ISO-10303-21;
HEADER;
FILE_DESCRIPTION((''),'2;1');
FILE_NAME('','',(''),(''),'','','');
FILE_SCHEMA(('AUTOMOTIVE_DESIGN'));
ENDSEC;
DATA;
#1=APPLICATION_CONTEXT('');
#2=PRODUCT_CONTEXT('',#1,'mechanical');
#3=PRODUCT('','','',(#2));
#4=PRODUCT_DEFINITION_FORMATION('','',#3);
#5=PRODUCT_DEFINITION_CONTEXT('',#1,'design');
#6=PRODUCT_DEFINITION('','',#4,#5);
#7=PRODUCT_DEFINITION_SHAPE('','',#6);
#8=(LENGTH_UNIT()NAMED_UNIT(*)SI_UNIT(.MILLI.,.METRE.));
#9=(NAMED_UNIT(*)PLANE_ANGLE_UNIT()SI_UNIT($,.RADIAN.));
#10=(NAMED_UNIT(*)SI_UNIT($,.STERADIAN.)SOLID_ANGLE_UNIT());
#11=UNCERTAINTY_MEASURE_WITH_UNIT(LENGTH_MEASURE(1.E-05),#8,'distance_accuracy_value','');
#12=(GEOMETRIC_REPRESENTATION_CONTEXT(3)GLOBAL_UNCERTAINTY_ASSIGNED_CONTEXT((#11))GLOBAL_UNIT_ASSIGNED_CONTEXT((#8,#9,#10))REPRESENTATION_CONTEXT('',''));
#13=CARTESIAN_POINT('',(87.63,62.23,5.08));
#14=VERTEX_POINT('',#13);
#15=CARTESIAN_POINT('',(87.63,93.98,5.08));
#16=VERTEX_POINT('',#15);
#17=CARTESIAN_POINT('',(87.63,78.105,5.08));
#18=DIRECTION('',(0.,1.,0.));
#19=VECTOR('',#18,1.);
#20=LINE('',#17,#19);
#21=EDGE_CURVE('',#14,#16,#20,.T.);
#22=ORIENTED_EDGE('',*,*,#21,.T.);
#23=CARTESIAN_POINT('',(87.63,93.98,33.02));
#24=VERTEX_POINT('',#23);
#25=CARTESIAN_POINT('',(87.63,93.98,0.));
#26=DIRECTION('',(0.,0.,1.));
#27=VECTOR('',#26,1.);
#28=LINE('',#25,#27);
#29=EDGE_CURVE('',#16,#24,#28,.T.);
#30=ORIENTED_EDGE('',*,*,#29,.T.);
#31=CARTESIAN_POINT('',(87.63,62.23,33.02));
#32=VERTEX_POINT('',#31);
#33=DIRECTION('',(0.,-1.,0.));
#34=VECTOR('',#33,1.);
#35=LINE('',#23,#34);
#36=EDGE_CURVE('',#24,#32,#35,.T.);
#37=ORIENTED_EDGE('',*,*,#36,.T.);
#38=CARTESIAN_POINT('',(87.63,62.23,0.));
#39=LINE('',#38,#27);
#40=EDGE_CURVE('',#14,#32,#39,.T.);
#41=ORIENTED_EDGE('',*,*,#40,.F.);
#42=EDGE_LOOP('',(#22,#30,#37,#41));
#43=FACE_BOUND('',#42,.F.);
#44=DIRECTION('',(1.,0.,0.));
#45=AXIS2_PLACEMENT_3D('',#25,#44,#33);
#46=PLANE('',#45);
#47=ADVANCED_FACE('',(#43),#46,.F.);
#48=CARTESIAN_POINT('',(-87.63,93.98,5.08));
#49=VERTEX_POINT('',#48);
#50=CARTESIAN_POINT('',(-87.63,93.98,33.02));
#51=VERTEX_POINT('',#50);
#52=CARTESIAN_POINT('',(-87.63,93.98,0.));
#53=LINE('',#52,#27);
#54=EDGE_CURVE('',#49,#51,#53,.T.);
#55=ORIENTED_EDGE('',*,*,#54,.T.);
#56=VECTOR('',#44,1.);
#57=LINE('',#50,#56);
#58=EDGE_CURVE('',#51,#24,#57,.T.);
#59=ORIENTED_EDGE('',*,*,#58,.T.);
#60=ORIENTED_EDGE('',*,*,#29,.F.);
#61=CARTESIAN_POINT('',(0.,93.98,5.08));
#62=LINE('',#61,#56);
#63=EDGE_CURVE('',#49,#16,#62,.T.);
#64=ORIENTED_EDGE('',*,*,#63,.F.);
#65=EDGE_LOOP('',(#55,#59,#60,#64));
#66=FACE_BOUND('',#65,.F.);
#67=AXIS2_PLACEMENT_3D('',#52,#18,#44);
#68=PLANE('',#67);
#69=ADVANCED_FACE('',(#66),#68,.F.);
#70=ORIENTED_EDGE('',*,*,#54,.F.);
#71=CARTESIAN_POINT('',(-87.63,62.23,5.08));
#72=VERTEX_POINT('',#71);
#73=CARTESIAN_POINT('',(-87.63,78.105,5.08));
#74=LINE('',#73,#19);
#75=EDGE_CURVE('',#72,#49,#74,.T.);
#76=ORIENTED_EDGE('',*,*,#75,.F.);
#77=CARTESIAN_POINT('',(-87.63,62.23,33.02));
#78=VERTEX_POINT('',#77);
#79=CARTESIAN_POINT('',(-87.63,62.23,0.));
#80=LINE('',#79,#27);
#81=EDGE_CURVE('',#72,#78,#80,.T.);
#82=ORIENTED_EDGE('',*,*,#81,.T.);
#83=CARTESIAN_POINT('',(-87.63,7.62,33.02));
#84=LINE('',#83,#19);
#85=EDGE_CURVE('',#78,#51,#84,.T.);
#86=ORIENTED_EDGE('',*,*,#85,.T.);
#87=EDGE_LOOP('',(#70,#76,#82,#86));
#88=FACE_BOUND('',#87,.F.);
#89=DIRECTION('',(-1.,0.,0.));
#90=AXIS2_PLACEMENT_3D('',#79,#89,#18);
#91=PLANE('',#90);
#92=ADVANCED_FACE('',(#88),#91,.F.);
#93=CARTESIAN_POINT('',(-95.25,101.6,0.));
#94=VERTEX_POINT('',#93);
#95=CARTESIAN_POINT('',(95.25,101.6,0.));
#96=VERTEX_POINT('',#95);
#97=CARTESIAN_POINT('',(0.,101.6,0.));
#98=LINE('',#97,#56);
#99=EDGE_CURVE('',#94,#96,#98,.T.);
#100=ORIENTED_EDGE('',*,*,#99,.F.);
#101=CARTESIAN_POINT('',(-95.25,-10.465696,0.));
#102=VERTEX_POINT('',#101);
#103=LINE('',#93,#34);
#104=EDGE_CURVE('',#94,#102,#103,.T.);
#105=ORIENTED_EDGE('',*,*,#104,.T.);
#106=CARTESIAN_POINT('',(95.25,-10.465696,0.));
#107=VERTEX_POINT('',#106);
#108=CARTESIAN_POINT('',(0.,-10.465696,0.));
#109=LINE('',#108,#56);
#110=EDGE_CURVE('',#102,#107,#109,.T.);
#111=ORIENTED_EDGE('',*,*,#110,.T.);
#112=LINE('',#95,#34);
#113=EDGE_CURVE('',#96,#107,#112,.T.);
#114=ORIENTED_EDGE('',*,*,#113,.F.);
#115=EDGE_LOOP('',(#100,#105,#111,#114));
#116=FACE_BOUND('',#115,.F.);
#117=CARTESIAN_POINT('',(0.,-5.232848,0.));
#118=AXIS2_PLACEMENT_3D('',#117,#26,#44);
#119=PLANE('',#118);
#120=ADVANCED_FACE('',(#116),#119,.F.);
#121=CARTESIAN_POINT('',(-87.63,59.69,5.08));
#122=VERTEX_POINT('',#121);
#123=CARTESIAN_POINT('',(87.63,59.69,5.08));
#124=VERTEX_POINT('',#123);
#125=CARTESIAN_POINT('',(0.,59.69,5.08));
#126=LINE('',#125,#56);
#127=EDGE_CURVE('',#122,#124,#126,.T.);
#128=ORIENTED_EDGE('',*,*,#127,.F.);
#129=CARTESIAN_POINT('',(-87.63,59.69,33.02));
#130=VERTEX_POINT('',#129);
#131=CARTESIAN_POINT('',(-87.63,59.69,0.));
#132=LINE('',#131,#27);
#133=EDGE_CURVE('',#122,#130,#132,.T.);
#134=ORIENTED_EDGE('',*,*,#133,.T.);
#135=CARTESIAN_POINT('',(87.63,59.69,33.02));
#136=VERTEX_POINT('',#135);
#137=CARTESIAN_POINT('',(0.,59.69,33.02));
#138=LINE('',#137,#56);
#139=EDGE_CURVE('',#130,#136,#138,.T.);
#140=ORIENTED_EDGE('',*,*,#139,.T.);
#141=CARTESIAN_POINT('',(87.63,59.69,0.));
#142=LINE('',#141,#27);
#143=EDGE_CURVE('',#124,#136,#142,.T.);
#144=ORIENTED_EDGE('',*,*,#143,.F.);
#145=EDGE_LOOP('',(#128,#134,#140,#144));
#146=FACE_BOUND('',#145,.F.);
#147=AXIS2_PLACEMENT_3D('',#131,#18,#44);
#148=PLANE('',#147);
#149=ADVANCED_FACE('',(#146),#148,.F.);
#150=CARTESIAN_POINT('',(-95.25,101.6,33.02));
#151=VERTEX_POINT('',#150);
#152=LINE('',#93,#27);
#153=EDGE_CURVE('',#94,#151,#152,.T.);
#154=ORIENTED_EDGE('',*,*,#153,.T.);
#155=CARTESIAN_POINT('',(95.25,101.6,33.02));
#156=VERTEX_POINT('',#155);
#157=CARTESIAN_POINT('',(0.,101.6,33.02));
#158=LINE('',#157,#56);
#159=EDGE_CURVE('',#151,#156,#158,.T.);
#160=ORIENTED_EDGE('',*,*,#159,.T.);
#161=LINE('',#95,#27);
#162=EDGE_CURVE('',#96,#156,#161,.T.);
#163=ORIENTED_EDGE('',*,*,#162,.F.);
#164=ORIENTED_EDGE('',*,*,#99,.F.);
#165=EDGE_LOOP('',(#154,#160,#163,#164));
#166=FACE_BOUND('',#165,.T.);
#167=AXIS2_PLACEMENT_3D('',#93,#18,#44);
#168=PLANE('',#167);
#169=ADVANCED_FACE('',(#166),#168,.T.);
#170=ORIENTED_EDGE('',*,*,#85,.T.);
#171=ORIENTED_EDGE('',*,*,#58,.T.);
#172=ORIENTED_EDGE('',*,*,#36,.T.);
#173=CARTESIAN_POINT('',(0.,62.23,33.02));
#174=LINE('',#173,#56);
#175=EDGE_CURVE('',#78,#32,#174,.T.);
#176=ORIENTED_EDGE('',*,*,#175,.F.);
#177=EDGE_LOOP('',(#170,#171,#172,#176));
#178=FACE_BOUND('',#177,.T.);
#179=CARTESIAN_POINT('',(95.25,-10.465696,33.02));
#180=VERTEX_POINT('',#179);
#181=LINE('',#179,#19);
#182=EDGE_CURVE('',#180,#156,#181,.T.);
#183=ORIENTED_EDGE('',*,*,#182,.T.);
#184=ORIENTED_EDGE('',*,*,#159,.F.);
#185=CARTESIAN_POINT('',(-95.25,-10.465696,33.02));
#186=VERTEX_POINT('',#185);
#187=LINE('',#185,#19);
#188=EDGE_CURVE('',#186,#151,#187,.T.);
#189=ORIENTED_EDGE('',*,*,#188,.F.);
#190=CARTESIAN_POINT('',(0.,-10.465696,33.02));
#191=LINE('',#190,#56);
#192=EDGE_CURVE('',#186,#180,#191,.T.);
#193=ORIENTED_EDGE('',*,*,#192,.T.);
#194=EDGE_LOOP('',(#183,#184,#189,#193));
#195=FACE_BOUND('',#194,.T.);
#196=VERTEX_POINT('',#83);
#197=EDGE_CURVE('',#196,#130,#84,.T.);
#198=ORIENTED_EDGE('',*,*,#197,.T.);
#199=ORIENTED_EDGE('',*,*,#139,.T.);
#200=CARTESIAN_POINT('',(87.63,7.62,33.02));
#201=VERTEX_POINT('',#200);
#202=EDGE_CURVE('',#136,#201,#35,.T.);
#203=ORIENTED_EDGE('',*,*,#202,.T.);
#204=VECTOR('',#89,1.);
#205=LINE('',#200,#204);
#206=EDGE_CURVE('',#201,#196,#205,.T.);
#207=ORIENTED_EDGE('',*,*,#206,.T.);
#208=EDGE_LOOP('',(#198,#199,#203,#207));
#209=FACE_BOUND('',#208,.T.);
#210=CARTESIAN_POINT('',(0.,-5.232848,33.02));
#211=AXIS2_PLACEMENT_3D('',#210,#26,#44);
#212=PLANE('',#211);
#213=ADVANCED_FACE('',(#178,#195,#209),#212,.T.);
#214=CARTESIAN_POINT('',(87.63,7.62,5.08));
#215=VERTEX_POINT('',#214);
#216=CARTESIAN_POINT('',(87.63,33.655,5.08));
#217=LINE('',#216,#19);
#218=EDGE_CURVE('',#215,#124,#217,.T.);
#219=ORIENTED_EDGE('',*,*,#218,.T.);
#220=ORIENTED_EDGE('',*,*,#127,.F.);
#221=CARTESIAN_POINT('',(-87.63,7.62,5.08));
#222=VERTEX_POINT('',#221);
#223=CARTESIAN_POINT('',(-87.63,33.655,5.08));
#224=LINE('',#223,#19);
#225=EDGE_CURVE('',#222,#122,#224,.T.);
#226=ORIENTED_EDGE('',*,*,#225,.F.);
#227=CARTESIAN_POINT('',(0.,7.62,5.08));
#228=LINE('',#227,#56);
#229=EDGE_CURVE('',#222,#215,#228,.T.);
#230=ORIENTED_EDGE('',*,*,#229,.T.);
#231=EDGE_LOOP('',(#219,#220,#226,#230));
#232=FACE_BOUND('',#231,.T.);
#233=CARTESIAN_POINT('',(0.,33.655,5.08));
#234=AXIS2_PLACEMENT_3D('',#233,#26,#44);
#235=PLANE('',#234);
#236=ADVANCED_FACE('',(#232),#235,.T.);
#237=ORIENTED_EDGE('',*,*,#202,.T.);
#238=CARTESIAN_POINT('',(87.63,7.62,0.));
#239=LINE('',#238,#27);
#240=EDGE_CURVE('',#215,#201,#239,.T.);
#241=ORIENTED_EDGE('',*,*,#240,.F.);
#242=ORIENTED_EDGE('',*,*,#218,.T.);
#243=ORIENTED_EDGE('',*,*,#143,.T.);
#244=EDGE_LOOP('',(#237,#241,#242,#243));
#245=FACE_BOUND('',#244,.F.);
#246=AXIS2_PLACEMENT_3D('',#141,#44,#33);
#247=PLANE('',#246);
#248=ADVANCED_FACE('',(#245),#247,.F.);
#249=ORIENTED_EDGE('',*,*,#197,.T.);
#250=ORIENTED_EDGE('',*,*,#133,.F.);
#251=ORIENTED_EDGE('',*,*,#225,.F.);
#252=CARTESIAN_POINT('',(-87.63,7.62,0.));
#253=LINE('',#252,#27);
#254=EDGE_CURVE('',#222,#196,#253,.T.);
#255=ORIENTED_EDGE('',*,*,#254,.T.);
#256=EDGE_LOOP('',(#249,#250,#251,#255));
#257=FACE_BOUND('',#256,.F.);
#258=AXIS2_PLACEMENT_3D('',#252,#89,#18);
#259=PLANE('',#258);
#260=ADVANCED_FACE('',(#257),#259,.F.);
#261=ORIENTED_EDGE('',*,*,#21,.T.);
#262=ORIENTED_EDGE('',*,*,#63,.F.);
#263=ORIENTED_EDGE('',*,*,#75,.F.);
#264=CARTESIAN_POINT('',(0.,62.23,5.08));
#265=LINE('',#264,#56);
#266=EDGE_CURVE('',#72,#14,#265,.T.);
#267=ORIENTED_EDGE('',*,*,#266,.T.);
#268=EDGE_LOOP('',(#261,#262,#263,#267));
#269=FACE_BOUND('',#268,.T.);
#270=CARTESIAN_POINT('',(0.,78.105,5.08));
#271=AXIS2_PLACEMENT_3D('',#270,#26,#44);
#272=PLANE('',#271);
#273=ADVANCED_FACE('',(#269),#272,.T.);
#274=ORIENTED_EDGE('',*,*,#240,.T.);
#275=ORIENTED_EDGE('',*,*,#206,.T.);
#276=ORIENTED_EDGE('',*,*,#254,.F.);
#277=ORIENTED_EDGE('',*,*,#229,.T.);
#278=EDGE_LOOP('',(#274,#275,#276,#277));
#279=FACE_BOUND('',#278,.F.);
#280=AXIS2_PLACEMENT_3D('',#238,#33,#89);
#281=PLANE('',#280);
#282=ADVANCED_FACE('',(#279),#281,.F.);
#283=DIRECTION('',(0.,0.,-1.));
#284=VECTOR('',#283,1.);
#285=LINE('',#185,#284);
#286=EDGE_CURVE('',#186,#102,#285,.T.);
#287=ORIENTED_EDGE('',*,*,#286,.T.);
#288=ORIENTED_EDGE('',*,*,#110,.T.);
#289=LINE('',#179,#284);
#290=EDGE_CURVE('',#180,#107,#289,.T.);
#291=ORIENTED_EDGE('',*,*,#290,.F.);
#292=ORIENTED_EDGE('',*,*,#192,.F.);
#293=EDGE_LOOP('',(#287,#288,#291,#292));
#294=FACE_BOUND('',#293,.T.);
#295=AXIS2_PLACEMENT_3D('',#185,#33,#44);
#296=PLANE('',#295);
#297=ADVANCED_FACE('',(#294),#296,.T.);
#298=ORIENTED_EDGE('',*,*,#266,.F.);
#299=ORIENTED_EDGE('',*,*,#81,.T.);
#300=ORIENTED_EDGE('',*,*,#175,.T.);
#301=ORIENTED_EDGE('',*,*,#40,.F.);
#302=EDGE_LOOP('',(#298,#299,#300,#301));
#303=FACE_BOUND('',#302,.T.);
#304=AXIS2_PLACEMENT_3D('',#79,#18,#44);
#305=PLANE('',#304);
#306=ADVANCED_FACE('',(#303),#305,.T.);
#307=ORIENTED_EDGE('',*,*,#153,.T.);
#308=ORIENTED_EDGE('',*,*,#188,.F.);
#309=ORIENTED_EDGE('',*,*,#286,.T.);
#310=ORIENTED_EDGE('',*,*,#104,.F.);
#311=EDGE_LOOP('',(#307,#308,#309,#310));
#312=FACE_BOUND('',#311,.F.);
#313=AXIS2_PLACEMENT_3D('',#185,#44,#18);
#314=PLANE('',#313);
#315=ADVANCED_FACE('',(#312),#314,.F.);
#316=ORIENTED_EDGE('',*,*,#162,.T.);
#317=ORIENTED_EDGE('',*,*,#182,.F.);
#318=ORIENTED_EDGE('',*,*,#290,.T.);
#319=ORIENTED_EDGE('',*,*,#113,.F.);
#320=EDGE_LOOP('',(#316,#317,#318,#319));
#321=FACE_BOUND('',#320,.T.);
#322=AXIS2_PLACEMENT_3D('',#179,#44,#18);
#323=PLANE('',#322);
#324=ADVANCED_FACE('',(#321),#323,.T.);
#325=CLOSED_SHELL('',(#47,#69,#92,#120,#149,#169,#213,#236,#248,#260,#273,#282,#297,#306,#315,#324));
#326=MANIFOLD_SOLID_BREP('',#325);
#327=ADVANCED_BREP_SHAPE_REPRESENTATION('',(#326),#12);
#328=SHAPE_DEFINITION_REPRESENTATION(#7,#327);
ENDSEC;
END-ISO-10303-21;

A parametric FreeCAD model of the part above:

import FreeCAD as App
import Part
import Sketcher

V = App.Vector
Q = App.Units.Quantity

doc = App.newDocument("Part")
body = doc.addObject("PartDesign::Body", "Body")

sketch1 = body.newObject("Sketcher::SketchObject", "Sketch")
sketch1.AttachmentSupport = (doc.getObject("XY_Plane"), [""])
sketch1.MapMode = "FlatFace"
sketch1.addGeometry([
    Part.LineSegment(V(-95, 102, 0), V(-95, 0, 0)),
    Part.LineSegment(V(-95, 0, 0), V(95, 0, 0)),
    Part.LineSegment(V(95, 0, 0), V(95, 102, 0)),
    Part.LineSegment(V(95, 102, 0), V(-95, 102, 0)),
    Part.LineSegment(V(88, 94, 0), V(88, 62, 0)),
    Part.LineSegment(V(88, 62, 0), V(-88, 62, 0)),
    Part.LineSegment(V(-88, 62, 0), V(-88, 94, 0)),
    Part.LineSegment(V(-88, 94, 0), V(88, 94, 0)),
    Part.LineSegment(V(88, 60, 0), V(88, 8, 0)),
    Part.LineSegment(V(88, 8, 0), V(-88, 8, 0)),
    Part.LineSegment(V(-88, 8, 0), V(-88, 60, 0)),
    Part.LineSegment(V(-88, 60, 0), V(88, 60, 0)),
], False)
sketch1.addConstraint([
    Sketcher.Constraint("Coincident", 0, 2, 1, 1),
    Sketcher.Constraint("Coincident", 1, 2, 2, 1),
    Sketcher.Constraint("Coincident", 2, 2, 3, 1),
    Sketcher.Constraint("Coincident", 3, 2, 0, 1),
    Sketcher.Constraint("Coincident", 4, 2, 5, 1),
    Sketcher.Constraint("Coincident", 5, 2, 6, 1),
    Sketcher.Constraint("Coincident", 6, 2, 7, 1),
    Sketcher.Constraint("Coincident", 7, 2, 4, 1),
    Sketcher.Constraint("Coincident", 8, 2, 9, 1),
    Sketcher.Constraint("Coincident", 9, 2, 10, 1),
    Sketcher.Constraint("Coincident", 10, 2, 11, 1),
    Sketcher.Constraint("Coincident", 11, 2, 8, 1),
    Sketcher.Constraint("Vertical", 0),
    Sketcher.Constraint("Horizontal", 1),
    Sketcher.Constraint("Vertical", 2),
    Sketcher.Constraint("Horizontal", 3),
    Sketcher.Constraint("Vertical", 4),
    Sketcher.Constraint("Horizontal", 5),
    Sketcher.Constraint("Vertical", 6),
    Sketcher.Constraint("Horizontal", 7),
    Sketcher.Constraint("Vertical", 8),
    Sketcher.Constraint("Horizontal", 9),
    Sketcher.Constraint("Vertical", 10),
    Sketcher.Constraint("Horizontal", 11),
    Sketcher.Constraint("Symmetric", 0, 2, 1, 2, -1, 1),
    Sketcher.Constraint("Vertical", 7, 2, 8, 2),
    Sketcher.Constraint("Vertical", 6, 2, 9, 2),
    Sketcher.Constraint("DistanceY", 0, 2, 0, 1, Q("4 in")),
    Sketcher.Constraint("DistanceX", 1, 1, 1, 2, Q("7.5 in")),
    Sketcher.Constraint("DistanceX", 5, 2, 5, 1, Q("6.9 in")),
    Sketcher.Constraint("DistanceY", 4, 2, 4, 1, Q("1.25 in")),
    Sketcher.Constraint("DistanceY", 8, 2, 8, 1, Q("2.05 in")),
    Sketcher.Constraint("DistanceY", -1, 1, 6, 2, Q("3.7 in")),
    Sketcher.Constraint("DistanceY", -1, 1, 8, 2, Q("0.3 in")),
    Sketcher.Constraint("DistanceX", 4, 2, 2, 2, Q("0.3 in")),
])
pad1 = body.newObject("PartDesign::Pad", "Pad")
pad1.Profile = sketch1
pad1.Length = Q("1.3 in")

sketch2 = body.newObject("Sketcher::SketchObject", "Sketch001")
sketch2.AttachmentSupport = (doc.getObject("XY_Plane"), [""])
sketch2.MapMode = "FlatFace"
sketch2.addGeometry([
    Part.LineSegment(V(-88, 94, 0), V(-88, 62, 0)),
    Part.LineSegment(V(-88, 62, 0), V(88, 62, 0)),
    Part.LineSegment(V(88, 62, 0), V(88, 94, 0)),
    Part.LineSegment(V(88, 94, 0), V(-88, 94, 0)),
    Part.LineSegment(V(-88, 60, 0), V(-88, 8, 0)),
    Part.LineSegment(V(-88, 8, 0), V(88, 8, 0)),
    Part.LineSegment(V(88, 8, 0), V(88, 60, 0)),
    Part.LineSegment(V(88, 60, 0), V(-88, 60, 0)),
], False)
sketch2.addConstraint([
    Sketcher.Constraint("Coincident", 0, 2, 1, 1),
    Sketcher.Constraint("Coincident", 1, 2, 2, 1),
    Sketcher.Constraint("Coincident", 2, 2, 3, 1),
    Sketcher.Constraint("Coincident", 3, 2, 0, 1),
    Sketcher.Constraint("Coincident", 4, 2, 5, 1),
    Sketcher.Constraint("Coincident", 5, 2, 6, 1),
    Sketcher.Constraint("Coincident", 6, 2, 7, 1),
    Sketcher.Constraint("Coincident", 7, 2, 4, 1),
    Sketcher.Constraint("Vertical", 0),
    Sketcher.Constraint("Horizontal", 1),
    Sketcher.Constraint("Vertical", 2),
    Sketcher.Constraint("Horizontal", 3),
    Sketcher.Constraint("Vertical", 4),
    Sketcher.Constraint("Horizontal", 5),
    Sketcher.Constraint("Vertical", 6),
    Sketcher.Constraint("Horizontal", 7),
    Sketcher.Constraint("Vertical", 3, 2, 4, 2),
    Sketcher.Constraint("Vertical", 2, 2, 5, 2),
    Sketcher.Constraint("DistanceX", 1, 1, 1, 2, Q("6.9 in")),
    Sketcher.Constraint("DistanceY", 0, 2, 0, 1, Q("1.25 in")),
    Sketcher.Constraint("DistanceY", 4, 2, 4, 1, Q("2.05 in")),
    Sketcher.Constraint("DistanceY", -1, 1, 2, 2, Q("3.7 in")),
    Sketcher.Constraint("DistanceY", -1, 1, 4, 2, Q("0.3 in")),
    Sketcher.Constraint("DistanceX", 0, 2, -1, 1, Q("3.45 in")),
])
pad2 = body.newObject("PartDesign::Pad", "Pad001")
pad2.Profile = sketch2
pad2.Length = Q("0.2 in")

sketch3 = body.newObject("Sketcher::SketchObject", "Sketch002")
sketch3.AttachmentSupport = (doc.getObject("XY_Plane"), [""])
sketch3.MapMode = "FlatFace"
sketch3.AttachmentOffset = App.Placement(V(0, 0, 1.3 * 25.4), App.Rotation())
sketch3.addGeometry([
    Part.LineSegment(V(-95, 0, 0), V(-95, -10, 0)),
    Part.LineSegment(V(-95, -10, 0), V(95, -10, 0)),
    Part.LineSegment(V(95, -10, 0), V(95, 0, 0)),
    Part.LineSegment(V(95, 0, 0), V(-95, 0, 0)),
], False)
sketch3.addConstraint([
    Sketcher.Constraint("Coincident", 0, 2, 1, 1),
    Sketcher.Constraint("Coincident", 1, 2, 2, 1),
    Sketcher.Constraint("Coincident", 2, 2, 3, 1),
    Sketcher.Constraint("Coincident", 3, 2, 0, 1),
    Sketcher.Constraint("Vertical", 0),
    Sketcher.Constraint("Horizontal", 1),
    Sketcher.Constraint("Vertical", 2),
    Sketcher.Constraint("Horizontal", 3),
    Sketcher.Constraint("Symmetric", 2, 2, 3, 2, -1, 1),
    Sketcher.Constraint("DistanceX", 1, 1, 1, 2, Q("7.5 in")),
    Sketcher.Constraint("DistanceY", 0, 2, 0, 1, Q("10.465697 mm")),
])
pad3 = body.newObject("PartDesign::Pad", "Pad002")
pad3.Profile = sketch3
pad3.Length = Q("1.3 in")
pad3.Reversed = True

doc.recompute()
